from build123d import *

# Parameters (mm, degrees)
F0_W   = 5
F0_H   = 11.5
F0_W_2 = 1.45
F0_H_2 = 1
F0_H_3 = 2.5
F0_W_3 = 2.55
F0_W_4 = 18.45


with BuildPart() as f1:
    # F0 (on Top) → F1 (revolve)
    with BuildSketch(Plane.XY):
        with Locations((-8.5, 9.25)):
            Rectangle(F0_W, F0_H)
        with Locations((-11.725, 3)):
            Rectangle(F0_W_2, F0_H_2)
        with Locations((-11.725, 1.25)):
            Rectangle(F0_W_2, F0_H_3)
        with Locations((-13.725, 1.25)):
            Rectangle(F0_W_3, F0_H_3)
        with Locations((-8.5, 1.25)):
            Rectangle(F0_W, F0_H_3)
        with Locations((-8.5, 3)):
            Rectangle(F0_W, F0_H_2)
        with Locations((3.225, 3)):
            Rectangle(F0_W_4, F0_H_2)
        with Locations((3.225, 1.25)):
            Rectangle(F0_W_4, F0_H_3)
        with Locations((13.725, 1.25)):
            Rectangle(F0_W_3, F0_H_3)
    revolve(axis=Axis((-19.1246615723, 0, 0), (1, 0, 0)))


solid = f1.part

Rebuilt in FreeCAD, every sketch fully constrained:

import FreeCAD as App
import Part
import Sketcher
from FreeCAD import Vector

doc = App.newDocument("Part")
body = doc.addObject("PartDesign::Body", "Body")

sketch1 = body.newObject("Sketcher::SketchObject", "Sketch")
sketch1.AttachmentSupport = (doc.getObject("XY_Plane"), [""])
sketch1.MapMode = "FlatFace"
sketch1.addGeometry([
    Part.LineSegment(Vector(-11, 15, 0), Vector(-11, 3.5, 0)),
    Part.LineSegment(Vector(-11, 3.5, 0), Vector(-12.4, 3.5, 0)),
    Part.LineSegment(Vector(-12.4, 3.5, 0), Vector(-12.4, 2.5, 0)),
    Part.LineSegment(Vector(-12.4, 2.5, 0), Vector(-15, 2.5, 0)),
    Part.LineSegment(Vector(-15, 2.5, 0), Vector(-15, 0, 0)),
    Part.LineSegment(Vector(-15, 0, 0), Vector(15, 0, 0)),
    Part.LineSegment(Vector(15, 0, 0), Vector(15, 2.5, 0)),
    Part.LineSegment(Vector(15, 2.5, 0), Vector(12.4, 2.5, 0)),
    Part.LineSegment(Vector(12.4, 2.5, 0), Vector(12.4, 3.5, 0)),
    Part.LineSegment(Vector(12.4, 3.5, 0), Vector(-6, 3.5, 0)),
    Part.LineSegment(Vector(-6, 3.5, 0), Vector(-6, 15, 0)),
    Part.LineSegment(Vector(-6, 15, 0), Vector(-11, 15, 0)),
], False)
sketch1.addConstraint([
    Sketcher.Constraint("Coincident", 0, 2, 1, 1),
    Sketcher.Constraint("Coincident", 1, 2, 2, 1),
    Sketcher.Constraint("Coincident", 2, 2, 3, 1),
    Sketcher.Constraint("Coincident", 3, 2, 4, 1),
    Sketcher.Constraint("Coincident", 4, 2, 5, 1),
    Sketcher.Constraint("Coincident", 5, 2, 6, 1),
    Sketcher.Constraint("Coincident", 6, 2, 7, 1),
    Sketcher.Constraint("Coincident", 7, 2, 8, 1),
    Sketcher.Constraint("Coincident", 8, 2, 9, 1),
    Sketcher.Constraint("Coincident", 9, 2, 10, 1),
    Sketcher.Constraint("Coincident", 10, 2, 11, 1),
    Sketcher.Constraint("Coincident", 11, 2, 0, 1),
    Sketcher.Constraint("Vertical", 0),
    Sketcher.Constraint("Horizontal", 1),
    Sketcher.Constraint("Vertical", 2),
    Sketcher.Constraint("Horizontal", 3),
    Sketcher.Constraint("Vertical", 4),
    Sketcher.Constraint("Horizontal", 5),
    Sketcher.Constraint("Vertical", 6),
    Sketcher.Constraint("Horizontal", 7),
    Sketcher.Constraint("Vertical", 8),
    Sketcher.Constraint("Horizontal", 9),
    Sketcher.Constraint("Vertical", 10),
    Sketcher.Constraint("Horizontal", 11),
    Sketcher.Constraint("Symmetric", 4, 2, 5, 2, -1, 1),
    Sketcher.Constraint("Symmetric", 2, 2, 7, 2, -2),
    Sketcher.Constraint("Horizontal", 1, 2, 8, 2),
    Sketcher.Constraint("DistanceX", 5, 1, 5, 2, 30.0),
    Sketcher.Constraint("DistanceX", 11, 2, 11, 1, 5.0),
    Sketcher.Constraint("DistanceY", 2, 2, 2, 1, 1.0),
    Sketcher.Constraint("DistanceY", 0, 2, 0, 1, 11.5),
    Sketcher.Constraint("DistanceY", 4, 2, 4, 1, 2.5),
    Sketcher.Constraint("DistanceX", 0, 2, -1, 1, 11.0),
    Sketcher.Constraint("DistanceX", 1, 2, 1, 1, 1.45),
])
revolution = body.newObject("PartDesign::Revolution", "Revolution")
revolution.Profile = sketch1
revolution.ReferenceAxis = (sketch1, ["H_Axis"])
revolution.Angle = 360

doc.recompute()
